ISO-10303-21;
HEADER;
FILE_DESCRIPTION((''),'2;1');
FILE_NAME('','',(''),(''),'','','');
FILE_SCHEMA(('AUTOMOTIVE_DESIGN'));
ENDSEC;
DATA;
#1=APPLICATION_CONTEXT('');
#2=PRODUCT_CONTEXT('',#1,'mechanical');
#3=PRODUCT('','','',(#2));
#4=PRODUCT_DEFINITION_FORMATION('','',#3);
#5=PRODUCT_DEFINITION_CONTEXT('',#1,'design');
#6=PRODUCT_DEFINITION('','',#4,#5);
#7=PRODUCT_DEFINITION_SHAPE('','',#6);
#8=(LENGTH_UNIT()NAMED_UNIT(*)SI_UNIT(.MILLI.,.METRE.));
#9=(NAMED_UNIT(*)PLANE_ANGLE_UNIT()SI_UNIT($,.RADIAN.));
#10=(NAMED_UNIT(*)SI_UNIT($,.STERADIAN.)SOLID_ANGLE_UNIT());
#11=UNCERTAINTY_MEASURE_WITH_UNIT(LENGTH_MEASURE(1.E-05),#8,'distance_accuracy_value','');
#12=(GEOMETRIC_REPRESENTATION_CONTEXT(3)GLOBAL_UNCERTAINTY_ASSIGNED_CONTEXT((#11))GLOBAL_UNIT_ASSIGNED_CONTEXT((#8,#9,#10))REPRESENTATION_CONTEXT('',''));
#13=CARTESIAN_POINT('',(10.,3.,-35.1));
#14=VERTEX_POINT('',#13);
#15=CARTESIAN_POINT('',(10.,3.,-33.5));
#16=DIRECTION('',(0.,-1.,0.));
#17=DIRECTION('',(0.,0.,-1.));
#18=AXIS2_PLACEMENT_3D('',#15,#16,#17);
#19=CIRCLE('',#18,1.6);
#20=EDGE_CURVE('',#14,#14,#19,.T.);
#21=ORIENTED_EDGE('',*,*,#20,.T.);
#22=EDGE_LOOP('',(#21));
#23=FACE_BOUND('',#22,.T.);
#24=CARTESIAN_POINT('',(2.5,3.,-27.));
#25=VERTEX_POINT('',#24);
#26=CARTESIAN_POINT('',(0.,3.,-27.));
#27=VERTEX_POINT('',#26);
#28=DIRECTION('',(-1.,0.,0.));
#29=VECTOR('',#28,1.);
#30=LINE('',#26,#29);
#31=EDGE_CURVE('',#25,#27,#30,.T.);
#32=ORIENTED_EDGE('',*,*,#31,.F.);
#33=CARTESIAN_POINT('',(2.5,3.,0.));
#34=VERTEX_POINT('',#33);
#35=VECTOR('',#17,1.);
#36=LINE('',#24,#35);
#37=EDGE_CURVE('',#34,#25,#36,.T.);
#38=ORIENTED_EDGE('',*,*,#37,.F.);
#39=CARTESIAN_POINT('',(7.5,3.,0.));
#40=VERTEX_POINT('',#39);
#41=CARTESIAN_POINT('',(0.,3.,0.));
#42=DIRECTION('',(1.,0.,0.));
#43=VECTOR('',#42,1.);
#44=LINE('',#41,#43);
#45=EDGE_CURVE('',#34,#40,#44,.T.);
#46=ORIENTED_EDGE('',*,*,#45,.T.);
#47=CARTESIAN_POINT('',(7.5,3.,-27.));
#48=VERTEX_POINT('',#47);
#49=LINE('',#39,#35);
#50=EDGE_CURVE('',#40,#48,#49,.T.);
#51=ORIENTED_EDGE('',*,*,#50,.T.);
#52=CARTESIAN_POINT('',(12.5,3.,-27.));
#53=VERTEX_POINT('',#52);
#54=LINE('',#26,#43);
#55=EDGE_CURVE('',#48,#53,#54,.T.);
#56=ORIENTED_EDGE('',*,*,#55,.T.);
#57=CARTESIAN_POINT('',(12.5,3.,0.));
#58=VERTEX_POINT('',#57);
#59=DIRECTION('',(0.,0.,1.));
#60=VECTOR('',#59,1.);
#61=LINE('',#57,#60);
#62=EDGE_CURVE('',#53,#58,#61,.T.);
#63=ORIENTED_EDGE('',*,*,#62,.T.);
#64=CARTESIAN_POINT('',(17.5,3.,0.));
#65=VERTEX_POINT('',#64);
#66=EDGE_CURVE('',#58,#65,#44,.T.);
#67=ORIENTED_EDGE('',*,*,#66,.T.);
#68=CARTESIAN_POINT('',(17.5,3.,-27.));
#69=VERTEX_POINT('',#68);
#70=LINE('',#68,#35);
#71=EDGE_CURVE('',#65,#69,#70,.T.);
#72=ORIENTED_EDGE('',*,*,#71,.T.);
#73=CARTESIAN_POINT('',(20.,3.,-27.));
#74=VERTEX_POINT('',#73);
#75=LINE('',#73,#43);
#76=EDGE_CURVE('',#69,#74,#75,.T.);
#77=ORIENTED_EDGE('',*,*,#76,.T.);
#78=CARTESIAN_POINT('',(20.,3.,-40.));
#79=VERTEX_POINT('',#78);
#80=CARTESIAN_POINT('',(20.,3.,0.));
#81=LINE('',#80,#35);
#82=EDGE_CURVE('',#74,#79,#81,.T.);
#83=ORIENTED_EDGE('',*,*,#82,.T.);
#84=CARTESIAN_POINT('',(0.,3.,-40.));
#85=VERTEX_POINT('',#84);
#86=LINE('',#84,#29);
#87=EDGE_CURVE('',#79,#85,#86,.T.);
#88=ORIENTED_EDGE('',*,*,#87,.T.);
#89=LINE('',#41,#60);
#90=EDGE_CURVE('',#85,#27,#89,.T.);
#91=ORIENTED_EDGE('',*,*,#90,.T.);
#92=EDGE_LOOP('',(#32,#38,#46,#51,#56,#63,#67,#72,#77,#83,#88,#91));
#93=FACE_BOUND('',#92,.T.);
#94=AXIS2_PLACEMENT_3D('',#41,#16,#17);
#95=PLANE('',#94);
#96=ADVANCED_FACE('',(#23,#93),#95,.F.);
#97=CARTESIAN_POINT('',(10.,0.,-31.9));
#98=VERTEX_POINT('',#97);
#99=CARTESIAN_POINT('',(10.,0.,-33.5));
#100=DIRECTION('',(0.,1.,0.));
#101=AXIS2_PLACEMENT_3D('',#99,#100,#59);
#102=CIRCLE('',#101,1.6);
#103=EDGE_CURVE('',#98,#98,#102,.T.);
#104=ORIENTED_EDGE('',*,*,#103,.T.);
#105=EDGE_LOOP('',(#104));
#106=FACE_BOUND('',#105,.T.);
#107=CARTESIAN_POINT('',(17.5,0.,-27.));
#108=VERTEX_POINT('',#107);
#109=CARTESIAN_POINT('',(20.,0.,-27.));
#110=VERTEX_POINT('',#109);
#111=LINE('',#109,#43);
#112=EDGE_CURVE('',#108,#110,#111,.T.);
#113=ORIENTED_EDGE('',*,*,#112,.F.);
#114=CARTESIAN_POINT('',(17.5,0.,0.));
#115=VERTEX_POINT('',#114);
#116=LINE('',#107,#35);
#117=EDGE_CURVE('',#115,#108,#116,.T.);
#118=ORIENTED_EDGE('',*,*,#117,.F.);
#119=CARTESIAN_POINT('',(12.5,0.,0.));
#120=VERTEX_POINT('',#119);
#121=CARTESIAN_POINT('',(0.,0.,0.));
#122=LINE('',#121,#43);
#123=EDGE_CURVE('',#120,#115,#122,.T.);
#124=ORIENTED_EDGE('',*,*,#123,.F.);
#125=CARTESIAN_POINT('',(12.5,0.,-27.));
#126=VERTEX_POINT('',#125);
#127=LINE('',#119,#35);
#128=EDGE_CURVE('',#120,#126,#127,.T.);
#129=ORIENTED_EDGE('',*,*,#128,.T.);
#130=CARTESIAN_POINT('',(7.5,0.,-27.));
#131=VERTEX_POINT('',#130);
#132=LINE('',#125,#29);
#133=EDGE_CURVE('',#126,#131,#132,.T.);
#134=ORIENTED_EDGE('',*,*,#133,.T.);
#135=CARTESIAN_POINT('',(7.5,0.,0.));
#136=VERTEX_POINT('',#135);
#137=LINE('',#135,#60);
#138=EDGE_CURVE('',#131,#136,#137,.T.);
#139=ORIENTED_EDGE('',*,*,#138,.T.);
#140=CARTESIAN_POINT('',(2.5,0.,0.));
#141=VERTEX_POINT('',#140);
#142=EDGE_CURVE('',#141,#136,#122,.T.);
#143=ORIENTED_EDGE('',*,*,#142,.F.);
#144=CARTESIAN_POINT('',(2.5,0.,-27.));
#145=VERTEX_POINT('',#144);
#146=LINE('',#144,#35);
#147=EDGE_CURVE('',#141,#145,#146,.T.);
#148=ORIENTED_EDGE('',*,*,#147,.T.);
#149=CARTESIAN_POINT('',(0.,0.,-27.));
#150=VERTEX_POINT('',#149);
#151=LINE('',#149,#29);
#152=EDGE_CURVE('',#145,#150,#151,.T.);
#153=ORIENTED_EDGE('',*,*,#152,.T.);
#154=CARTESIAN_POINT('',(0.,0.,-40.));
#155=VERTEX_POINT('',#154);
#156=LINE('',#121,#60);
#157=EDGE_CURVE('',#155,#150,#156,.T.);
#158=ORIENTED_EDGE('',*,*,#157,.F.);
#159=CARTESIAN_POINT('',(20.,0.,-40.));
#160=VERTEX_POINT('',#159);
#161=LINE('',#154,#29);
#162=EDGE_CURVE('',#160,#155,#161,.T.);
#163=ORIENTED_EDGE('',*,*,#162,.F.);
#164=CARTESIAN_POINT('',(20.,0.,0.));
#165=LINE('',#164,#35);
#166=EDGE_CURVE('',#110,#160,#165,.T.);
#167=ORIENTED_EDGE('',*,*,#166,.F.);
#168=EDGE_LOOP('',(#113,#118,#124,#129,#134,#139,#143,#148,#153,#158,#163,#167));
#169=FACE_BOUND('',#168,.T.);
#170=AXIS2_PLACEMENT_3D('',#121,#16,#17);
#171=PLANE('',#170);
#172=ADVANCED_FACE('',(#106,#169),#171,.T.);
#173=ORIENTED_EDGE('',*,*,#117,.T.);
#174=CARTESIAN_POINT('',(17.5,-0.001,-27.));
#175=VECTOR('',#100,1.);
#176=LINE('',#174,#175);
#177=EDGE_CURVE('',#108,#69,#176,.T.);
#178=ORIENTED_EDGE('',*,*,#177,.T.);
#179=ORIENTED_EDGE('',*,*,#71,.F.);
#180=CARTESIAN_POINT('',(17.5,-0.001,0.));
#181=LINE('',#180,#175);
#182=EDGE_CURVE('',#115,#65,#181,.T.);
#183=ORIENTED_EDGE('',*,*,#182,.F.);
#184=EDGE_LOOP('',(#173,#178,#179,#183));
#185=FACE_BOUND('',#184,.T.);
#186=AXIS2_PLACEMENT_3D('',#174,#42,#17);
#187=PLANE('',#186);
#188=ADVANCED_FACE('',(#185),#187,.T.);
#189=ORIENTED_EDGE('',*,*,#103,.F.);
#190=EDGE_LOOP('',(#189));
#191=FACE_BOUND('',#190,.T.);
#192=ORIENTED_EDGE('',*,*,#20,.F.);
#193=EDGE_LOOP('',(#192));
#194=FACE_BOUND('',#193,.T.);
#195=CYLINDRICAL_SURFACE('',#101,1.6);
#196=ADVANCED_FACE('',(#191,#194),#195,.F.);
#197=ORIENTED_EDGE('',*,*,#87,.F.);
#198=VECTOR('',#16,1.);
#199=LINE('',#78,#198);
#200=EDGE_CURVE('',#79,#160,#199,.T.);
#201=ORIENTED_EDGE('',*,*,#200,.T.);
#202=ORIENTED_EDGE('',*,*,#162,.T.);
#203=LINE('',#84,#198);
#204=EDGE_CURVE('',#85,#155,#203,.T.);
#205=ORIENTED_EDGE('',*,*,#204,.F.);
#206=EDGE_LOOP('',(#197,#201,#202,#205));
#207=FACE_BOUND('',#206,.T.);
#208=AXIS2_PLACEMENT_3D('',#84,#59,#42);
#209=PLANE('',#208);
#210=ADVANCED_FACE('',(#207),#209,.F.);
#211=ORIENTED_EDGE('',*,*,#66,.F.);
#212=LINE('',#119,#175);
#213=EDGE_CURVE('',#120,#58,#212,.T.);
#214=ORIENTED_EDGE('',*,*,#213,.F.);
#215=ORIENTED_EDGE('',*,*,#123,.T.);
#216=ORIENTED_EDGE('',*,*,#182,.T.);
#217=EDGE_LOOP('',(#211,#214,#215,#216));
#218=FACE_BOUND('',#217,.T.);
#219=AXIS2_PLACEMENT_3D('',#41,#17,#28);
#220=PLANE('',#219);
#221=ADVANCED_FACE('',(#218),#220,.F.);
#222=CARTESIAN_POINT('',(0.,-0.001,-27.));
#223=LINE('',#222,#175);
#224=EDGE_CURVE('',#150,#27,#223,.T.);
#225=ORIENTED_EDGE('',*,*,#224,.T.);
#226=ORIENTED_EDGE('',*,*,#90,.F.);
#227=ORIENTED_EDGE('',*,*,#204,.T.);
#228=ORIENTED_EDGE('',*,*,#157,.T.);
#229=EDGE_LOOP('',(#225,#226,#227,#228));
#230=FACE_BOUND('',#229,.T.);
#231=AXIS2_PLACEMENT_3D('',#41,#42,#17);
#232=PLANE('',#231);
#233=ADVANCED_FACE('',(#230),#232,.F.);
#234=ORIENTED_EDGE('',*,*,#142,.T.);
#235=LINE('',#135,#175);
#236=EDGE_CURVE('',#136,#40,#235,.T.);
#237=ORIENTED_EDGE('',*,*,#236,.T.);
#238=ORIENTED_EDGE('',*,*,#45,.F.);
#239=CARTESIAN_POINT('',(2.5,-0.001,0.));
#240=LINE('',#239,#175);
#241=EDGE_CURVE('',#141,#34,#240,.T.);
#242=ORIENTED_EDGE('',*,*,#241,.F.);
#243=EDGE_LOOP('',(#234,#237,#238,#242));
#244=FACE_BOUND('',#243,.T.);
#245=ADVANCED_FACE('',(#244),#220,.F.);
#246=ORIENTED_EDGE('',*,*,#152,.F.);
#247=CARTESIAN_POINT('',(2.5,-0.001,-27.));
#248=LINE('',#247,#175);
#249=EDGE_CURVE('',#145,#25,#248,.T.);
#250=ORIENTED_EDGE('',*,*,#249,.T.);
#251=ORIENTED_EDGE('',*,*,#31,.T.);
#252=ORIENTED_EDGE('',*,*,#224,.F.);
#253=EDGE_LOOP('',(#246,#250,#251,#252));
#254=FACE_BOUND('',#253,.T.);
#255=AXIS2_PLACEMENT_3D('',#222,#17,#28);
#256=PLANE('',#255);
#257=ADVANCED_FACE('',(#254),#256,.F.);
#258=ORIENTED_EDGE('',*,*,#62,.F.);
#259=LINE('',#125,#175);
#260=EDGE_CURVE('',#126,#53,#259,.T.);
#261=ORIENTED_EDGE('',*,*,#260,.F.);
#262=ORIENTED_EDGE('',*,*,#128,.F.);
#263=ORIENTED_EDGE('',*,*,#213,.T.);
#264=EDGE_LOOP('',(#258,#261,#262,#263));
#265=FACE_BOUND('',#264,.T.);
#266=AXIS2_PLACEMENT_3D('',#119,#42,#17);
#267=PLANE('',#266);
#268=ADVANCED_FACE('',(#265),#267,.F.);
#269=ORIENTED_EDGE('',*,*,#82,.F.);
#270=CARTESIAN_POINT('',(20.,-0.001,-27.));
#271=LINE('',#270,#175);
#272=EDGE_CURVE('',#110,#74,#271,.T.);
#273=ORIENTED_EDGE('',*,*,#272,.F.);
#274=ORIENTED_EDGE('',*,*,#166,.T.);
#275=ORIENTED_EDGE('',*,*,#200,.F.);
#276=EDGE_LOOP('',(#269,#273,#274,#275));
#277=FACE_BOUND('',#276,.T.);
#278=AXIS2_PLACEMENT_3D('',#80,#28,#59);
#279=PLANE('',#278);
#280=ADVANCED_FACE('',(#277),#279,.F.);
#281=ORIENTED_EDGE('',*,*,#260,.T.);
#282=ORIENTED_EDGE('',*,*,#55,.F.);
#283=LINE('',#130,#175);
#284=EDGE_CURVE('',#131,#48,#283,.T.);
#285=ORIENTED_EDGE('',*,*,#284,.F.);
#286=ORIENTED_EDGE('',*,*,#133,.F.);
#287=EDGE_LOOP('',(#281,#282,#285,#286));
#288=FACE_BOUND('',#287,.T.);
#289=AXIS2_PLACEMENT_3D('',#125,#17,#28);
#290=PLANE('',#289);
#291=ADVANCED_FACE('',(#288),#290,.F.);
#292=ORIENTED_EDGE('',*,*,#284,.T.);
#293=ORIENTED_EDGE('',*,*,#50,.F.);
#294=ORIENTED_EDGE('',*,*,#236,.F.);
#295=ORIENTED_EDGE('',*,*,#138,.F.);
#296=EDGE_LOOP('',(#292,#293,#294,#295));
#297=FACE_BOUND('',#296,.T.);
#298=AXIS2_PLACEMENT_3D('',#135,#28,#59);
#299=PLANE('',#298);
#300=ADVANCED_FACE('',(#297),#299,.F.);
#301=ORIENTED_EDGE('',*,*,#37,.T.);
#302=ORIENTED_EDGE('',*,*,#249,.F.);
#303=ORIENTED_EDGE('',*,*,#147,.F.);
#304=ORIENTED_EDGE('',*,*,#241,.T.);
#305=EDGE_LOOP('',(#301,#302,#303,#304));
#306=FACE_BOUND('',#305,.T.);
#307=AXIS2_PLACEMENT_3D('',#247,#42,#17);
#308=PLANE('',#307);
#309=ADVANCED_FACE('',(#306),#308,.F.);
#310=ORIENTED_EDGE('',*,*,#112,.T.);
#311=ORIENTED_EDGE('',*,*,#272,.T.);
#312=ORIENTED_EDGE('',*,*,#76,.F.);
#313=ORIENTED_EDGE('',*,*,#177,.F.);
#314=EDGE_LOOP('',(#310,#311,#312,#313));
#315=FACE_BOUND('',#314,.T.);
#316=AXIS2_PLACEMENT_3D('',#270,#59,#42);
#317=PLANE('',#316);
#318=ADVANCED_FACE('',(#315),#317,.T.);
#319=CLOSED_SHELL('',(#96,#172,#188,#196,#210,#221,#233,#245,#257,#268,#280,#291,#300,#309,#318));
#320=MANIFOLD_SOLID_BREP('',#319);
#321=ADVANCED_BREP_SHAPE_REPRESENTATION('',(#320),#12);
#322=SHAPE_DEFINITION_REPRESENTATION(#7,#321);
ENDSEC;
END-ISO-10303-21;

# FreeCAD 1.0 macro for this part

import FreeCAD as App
import Part
import Sketcher
from FreeCAD import Vector


def add_polygon(sketch, points):
    """Adds a closed chain of lines whose ends are joined by coincident constraints."""
    first, n = sketch.GeometryCount, len(points)
    for a, b in zip(points, points[1:] + points[:1]):
        sketch.addGeometry(Part.LineSegment(App.Vector(*a, 0), App.Vector(*b, 0)), False)
    for i in range(n):
        sketch.addConstraint(Sketcher.Constraint("Coincident", first + i, 2, first + (i + 1) % n, 1))

doc = App.newDocument("Part")
params = doc.addObject("Spreadsheet::Sheet", "Params")
for row, (alias, value) in enumerate([
    ("sketch1_width", "20 mm"),
    ("sketch1_height", "40 mm"),
    ("pad1_length", "3 mm"),
    ("sketch2_height", "27 mm"),
    ("sketch2_width", "2.5 mm"),
    ("pocket1_length", "3 mm"),
    ("sketch3_diameter", "3.2 mm"),
    ("sketch4_width", "5 mm"),
    ("sketch4_height", "27 mm"),
], start=1):
    params.set(f"A{row}", alias)
    params.set(f"B{row}", "=" + value)
    params.setAlias(f"B{row}", alias)

body = doc.addObject("PartDesign::Body", "Body")

sketch1 = body.newObject("Sketcher::SketchObject", "Sketch")
sketch1.AttachmentSupport = (doc.getObject("XZ_Plane"), [""])
sketch1.MapMode = "FlatFace"
add_polygon(sketch1, [(0, -40), (0, 0), (20, 0), (20, -40)])
sketch1.addConstraint([
    Sketcher.Constraint("Vertical", 0),
    Sketcher.Constraint("Horizontal", 1),
    Sketcher.Constraint("Vertical", 2),
    Sketcher.Constraint("Horizontal", 3),
    Sketcher.Constraint("Coincident", 0, 2, -1, 1),
    Sketcher.Constraint("DistanceX", 1, 1, 1, 2, 20.0),
    Sketcher.Constraint("DistanceY", 0, 1, 0, 2, 40.0),
])
sketch1.setExpression("Constraints[9]", "Params.sketch1_width")
sketch1.setExpression("Constraints[10]", "Params.sketch1_height")
pad1 = body.newObject("PartDesign::Pad", "Pad")
pad1.Profile = sketch1
pad1.setExpression("Length", "Params.pad1_length")
pad1.Reversed = True

sketch2 = body.newObject("Sketcher::SketchObject", "Sketch001")
sketch2.AttachmentSupport = (doc.getObject("XZ_Plane"), [""])
sketch2.MapMode = "FlatFace"
sketch2.AttachmentOffset = App.Placement(Vector(0, 0, -3), App.Rotation())
add_polygon(sketch2, [(0, -27), (0, 0), (2.5, 0), (2.5, -27)])
sketch2.addConstraint([
    Sketcher.Constraint("Vertical", 0),
    Sketcher.Constraint("Horizontal", 1),
    Sketcher.Constraint("Vertical", 2),
    Sketcher.Constraint("Horizontal", 3),
    Sketcher.Constraint("Coincident", 0, 2, -1, 1),
    Sketcher.Constraint("DistanceY", 0, 1, 0, 2, 27.0),
    Sketcher.Constraint("DistanceX", 1, 1, 1, 2, 2.5),
])
sketch2.setExpression("Constraints[9]", "Params.sketch2_height")
sketch2.setExpression("Constraints[10]", "Params.sketch2_width")
pocket1 = body.newObject("PartDesign::Pocket", "Pocket")
pocket1.Profile = sketch2
pocket1.setExpression("Length", "Params.pocket1_length")
pocket1.Reversed = True
doc.recompute()

datumplane = body.newObject("PartDesign::Plane", "DatumPlane")
datumplane.AttachmentSupport = (doc.getObject("YZ_Plane"), [""])
datumplane.MapMode = "FlatFace"
datumplane.AttachmentOffset = App.Placement(Vector(0, 0, 10), App.Rotation())
mirrored = body.newObject("PartDesign::Mirrored", "Mirrored")
mirrored.Originals = [pocket1]
mirrored.MirrorPlane = (datumplane, [""])
body.Tip = mirrored

sketch3 = body.newObject("Sketcher::SketchObject", "Sketch002")
sketch3.AttachmentSupport = (doc.getObject("XZ_Plane"), [""])
sketch3.MapMode = "FlatFace"
sketch3.AttachmentOffset = App.Placement(Vector(0, 0, -3), App.Rotation())
sketch3.addGeometry(Part.Circle(Vector(10, -33.5, 0), Vector(0, 0, 1), 1.6), False)
sketch3.addConstraint([
    Sketcher.Constraint("Diameter", 0, 3.2),
    Sketcher.Constraint("DistanceX", -1, 1, 0, 3, 10.0),
    Sketcher.Constraint("DistanceY", 0, 3, -1, 1, 33.5),
])
sketch3.setExpression("Constraints[0]", "Params.sketch3_diameter")
pocket2 = body.newObject("PartDesign::Pocket", "Pocket001")
pocket2.Profile = sketch3
pocket2.Type = "ThroughAll"
pocket2.Midplane = True

sketch4 = body.newObject("Sketcher::SketchObject", "Sketch003")
sketch4.AttachmentSupport = (doc.getObject("XZ_Plane"), [""])
sketch4.MapMode = "FlatFace"
sketch4.AttachmentOffset = App.Placement(Vector(0, 0, -3), App.Rotation())
add_polygon(sketch4, [(7.5, -27), (7.5, 0), (12.5, 0), (12.5, -27)])
sketch4.addConstraint([
    Sketcher.Constraint("Vertical", 0),
    Sketcher.Constraint("Horizontal", 1),
    Sketcher.Constraint("Vertical", 2),
    Sketcher.Constraint("Horizontal", 3),
    Sketcher.Constraint("PointOnObject", 0, 2, -1),
    Sketcher.Constraint("DistanceX", 1, 1, 1, 2, 5.0),
    Sketcher.Constraint("DistanceY", 0, 1, 0, 2, 27.0),
    Sketcher.Constraint("DistanceX", -1, 1, 0, 2, 7.5),
])
sketch4.setExpression("Constraints[9]", "Params.sketch4_width")
sketch4.setExpression("Constraints[10]", "Params.sketch4_height")
pocket3 = body.newObject("PartDesign::Pocket", "Pocket002")
pocket3.Profile = sketch4
pocket3.Type = "ThroughAll"
pocket3.Midplane = True

doc.recompute()
